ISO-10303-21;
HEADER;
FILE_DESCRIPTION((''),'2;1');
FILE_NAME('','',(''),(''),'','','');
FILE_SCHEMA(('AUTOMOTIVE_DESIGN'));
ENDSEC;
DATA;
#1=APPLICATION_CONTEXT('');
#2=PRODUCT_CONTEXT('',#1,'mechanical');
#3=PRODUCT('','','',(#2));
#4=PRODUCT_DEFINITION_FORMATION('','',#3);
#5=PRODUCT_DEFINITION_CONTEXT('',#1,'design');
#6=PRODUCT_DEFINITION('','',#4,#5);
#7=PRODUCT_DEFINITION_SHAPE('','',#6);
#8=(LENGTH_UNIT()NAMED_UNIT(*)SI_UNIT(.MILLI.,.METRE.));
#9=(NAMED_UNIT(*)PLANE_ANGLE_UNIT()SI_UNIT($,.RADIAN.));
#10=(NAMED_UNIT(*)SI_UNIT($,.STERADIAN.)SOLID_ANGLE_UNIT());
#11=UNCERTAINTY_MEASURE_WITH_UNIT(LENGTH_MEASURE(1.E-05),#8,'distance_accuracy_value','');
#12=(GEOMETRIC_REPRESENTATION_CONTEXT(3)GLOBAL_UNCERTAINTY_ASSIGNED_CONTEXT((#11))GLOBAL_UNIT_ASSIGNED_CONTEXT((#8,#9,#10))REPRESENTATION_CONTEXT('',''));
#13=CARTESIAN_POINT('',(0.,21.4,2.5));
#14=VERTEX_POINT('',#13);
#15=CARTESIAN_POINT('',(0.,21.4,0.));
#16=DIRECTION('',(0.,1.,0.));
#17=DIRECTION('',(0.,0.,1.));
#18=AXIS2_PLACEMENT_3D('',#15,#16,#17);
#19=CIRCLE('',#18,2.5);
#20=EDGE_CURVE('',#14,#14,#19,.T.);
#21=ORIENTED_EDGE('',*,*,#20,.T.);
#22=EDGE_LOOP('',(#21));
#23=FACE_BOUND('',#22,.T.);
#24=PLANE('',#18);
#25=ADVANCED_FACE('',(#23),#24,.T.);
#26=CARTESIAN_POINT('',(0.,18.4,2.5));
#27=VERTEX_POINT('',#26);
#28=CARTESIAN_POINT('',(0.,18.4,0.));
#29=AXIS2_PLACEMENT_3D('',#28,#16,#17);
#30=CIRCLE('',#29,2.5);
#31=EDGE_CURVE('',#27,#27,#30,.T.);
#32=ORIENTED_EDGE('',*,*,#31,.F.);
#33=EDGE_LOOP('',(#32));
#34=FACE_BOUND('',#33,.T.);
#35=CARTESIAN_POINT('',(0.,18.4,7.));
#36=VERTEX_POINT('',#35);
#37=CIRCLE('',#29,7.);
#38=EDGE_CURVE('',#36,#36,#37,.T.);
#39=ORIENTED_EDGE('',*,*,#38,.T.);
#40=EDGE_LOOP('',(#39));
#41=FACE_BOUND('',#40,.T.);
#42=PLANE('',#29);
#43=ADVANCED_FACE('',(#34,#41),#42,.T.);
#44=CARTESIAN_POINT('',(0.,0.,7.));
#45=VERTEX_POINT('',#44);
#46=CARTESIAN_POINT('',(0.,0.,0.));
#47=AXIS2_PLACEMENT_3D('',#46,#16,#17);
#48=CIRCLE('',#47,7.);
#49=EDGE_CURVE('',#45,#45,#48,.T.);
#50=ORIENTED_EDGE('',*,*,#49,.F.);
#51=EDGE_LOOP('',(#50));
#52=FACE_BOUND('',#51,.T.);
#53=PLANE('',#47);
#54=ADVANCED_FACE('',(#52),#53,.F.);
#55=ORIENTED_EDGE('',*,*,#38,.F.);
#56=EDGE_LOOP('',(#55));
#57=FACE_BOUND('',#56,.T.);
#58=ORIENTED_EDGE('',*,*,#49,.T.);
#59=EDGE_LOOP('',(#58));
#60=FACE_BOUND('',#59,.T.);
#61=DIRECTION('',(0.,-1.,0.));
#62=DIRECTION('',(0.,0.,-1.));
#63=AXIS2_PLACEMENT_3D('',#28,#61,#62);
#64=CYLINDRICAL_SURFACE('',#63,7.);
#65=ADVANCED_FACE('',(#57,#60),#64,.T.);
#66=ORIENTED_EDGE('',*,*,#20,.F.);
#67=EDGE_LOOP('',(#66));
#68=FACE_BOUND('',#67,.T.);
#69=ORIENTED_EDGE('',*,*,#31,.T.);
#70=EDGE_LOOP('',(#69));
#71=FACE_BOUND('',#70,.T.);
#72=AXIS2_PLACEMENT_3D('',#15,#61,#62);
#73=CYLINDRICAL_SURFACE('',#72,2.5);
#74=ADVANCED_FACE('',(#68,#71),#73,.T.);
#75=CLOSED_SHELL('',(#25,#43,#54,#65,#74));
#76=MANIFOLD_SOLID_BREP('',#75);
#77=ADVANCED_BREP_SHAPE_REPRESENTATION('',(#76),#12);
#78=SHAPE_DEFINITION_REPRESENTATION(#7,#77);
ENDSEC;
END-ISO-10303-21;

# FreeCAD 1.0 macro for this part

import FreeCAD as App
import Part
import Sketcher
from FreeCAD import Vector
Q = App.Units.Quantity

doc = App.newDocument("Part")
body = doc.addObject("PartDesign::Body", "Body")

sketch1 = body.newObject("Sketcher::SketchObject", "Sketch")
sketch1.AttachmentSupport = (doc.getObject("XZ_Plane"), [""])
sketch1.MapMode = "FlatFace"
sketch1.addGeometry(Part.Circle(Vector(0, 0, 0), Vector(0, 0, 1), 7), False)
sketch1.addConstraint([
    Sketcher.Constraint("Coincident", 0, 3, -1, 1),
    Sketcher.Constraint("Diameter", 0, Q("14 mm")),
])
pad1 = body.newObject("PartDesign::Pad", "Pad")
pad1.Profile = sketch1
pad1.Length = 18.4
pad1.Reversed = True

sketch2 = body.newObject("Sketcher::SketchObject", "Sketch001")
sketch2.AttachmentSupport = (doc.getObject("XZ_Plane"), [""])
sketch2.MapMode = "FlatFace"
sketch2.AttachmentOffset = App.Placement(Vector(0, 0, -18.4), App.Rotation())
sketch2.addGeometry(Part.Circle(Vector(0, 0, 0), Vector(0, 0, 1), 2.5), False)
sketch2.addConstraint([
    Sketcher.Constraint("Coincident", 0, 3, -1, 1),
    Sketcher.Constraint("Diameter", 0, Q("5 mm")),
])
pad2 = body.newObject("PartDesign::Pad", "Pad001")
pad2.Profile = sketch2
pad2.Length = 3
pad2.Reversed = True

doc.recompute()
